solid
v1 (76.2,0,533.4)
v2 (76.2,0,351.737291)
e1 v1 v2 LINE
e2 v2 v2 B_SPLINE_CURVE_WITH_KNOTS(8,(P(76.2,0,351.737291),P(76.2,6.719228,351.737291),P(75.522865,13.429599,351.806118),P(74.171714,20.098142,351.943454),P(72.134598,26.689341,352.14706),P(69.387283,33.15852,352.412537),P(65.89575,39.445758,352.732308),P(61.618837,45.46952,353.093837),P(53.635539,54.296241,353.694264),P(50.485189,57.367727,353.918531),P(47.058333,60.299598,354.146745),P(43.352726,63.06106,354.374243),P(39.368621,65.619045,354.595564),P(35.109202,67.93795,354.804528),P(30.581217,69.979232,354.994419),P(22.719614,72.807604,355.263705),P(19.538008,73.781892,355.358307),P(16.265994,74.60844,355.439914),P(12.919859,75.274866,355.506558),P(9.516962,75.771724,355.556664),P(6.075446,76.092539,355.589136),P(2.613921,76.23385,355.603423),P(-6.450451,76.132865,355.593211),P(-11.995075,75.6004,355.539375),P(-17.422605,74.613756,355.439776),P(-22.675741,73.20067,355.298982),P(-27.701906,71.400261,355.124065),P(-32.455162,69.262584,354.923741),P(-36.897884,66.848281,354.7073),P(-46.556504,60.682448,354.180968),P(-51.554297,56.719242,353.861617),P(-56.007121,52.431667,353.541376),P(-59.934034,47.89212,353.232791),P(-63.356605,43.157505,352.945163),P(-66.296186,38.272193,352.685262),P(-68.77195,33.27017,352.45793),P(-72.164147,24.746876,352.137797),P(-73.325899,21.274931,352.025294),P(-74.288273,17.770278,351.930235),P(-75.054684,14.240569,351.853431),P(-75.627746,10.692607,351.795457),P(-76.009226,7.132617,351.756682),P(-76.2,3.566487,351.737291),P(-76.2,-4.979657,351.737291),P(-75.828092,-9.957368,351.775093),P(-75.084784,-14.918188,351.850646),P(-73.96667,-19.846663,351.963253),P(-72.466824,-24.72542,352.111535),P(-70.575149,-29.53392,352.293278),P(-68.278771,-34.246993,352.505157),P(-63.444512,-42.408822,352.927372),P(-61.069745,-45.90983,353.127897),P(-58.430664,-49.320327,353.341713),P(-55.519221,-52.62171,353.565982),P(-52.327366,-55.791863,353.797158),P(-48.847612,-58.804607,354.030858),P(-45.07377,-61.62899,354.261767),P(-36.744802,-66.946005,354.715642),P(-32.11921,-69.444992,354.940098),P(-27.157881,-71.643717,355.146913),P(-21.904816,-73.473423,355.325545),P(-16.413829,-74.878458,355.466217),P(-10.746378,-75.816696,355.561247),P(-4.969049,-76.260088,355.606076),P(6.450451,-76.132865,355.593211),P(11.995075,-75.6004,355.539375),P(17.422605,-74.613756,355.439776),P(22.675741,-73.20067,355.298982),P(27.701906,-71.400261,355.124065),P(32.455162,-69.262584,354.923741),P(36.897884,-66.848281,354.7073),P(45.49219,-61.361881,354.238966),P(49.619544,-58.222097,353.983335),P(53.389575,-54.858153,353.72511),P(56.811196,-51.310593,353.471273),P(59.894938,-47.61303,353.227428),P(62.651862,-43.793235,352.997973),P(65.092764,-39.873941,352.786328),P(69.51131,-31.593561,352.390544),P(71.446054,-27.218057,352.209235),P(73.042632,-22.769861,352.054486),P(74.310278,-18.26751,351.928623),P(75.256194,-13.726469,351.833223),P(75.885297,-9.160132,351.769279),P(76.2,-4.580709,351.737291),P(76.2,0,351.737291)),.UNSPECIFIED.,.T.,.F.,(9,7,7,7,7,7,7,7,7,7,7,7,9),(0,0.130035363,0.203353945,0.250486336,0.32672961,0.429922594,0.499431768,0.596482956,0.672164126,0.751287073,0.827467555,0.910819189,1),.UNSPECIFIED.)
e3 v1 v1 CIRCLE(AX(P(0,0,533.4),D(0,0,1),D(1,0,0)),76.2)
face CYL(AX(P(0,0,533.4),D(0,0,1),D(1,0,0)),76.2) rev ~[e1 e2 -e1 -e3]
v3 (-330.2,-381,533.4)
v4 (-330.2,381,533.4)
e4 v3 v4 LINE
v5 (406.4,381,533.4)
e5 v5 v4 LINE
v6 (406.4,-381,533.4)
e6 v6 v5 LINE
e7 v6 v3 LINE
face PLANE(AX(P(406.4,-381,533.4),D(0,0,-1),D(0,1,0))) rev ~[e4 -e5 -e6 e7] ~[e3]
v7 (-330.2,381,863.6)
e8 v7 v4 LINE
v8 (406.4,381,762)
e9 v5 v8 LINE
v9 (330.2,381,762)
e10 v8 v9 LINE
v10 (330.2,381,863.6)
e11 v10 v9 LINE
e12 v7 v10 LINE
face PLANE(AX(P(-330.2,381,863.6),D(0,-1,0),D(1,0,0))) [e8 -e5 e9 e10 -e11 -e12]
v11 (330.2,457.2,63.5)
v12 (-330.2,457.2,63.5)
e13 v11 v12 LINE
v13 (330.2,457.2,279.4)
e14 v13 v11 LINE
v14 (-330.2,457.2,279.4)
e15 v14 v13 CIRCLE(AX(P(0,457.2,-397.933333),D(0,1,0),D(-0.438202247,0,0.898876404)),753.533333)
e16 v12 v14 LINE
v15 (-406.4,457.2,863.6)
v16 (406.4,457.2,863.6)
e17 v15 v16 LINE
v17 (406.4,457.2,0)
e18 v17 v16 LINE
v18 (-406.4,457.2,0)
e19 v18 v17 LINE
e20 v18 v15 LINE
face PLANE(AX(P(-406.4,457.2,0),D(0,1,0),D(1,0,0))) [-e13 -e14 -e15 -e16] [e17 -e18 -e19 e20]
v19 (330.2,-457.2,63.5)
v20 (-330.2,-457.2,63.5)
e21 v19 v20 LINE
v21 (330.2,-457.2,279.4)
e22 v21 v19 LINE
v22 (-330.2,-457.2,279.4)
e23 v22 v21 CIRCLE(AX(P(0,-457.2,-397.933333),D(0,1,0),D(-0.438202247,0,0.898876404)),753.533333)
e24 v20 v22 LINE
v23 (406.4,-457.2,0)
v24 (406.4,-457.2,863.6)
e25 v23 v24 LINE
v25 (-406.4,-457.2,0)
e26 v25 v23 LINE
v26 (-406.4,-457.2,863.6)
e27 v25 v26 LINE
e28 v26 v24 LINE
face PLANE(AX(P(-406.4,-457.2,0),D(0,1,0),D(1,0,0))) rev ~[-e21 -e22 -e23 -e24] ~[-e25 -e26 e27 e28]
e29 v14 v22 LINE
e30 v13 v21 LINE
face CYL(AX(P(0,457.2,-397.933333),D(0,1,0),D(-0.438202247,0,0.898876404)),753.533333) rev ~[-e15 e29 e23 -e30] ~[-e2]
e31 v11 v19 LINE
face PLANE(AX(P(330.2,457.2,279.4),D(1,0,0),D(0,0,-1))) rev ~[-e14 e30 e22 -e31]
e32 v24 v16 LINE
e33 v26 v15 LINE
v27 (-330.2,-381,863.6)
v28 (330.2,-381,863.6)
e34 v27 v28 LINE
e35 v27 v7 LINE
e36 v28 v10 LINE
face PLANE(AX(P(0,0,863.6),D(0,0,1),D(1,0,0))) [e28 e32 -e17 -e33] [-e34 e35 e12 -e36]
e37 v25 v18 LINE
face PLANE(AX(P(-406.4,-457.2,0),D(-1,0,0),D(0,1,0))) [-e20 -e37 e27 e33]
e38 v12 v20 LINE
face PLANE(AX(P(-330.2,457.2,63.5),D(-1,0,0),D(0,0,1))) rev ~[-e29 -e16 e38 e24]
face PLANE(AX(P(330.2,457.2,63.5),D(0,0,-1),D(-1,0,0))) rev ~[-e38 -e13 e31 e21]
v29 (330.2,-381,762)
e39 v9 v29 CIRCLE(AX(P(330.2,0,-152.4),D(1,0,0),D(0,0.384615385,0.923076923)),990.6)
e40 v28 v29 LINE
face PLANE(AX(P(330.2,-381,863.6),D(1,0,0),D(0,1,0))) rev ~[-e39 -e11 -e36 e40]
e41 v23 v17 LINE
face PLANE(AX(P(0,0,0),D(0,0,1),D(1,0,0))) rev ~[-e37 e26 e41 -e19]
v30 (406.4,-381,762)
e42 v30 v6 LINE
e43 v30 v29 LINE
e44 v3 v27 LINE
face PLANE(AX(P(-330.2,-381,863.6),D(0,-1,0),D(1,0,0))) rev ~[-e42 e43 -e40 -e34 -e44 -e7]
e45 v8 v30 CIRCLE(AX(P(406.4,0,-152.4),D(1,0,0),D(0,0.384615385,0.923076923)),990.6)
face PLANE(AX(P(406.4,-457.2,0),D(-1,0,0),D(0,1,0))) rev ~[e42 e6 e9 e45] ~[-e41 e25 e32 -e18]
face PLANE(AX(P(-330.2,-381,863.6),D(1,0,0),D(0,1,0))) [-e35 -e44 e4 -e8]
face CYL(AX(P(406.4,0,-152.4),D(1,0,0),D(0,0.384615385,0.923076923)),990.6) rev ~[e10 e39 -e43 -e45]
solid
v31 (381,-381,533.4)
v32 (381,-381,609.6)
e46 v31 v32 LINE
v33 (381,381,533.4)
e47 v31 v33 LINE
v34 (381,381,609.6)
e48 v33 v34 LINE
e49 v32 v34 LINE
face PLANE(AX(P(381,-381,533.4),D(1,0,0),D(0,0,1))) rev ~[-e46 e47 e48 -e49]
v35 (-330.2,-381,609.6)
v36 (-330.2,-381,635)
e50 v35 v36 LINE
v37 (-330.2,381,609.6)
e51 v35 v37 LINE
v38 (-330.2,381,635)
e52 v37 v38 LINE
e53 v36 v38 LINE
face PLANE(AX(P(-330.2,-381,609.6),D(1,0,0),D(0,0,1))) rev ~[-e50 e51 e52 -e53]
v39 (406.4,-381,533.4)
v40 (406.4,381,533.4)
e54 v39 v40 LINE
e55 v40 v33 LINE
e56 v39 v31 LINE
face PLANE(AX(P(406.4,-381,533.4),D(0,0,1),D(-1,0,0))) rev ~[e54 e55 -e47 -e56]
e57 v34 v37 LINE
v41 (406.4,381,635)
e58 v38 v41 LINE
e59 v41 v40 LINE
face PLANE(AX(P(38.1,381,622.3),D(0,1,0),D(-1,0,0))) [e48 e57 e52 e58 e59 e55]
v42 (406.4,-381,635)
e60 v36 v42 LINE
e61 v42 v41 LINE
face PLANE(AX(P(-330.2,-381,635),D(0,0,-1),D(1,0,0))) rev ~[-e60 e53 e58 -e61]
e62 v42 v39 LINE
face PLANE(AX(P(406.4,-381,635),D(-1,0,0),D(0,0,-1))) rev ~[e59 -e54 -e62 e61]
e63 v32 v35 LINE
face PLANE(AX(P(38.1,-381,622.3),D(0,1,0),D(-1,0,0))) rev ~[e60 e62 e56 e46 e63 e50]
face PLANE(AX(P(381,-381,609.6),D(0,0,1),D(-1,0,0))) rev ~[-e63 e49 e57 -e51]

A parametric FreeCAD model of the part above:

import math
import FreeCAD as App
import Part
import Sketcher

V = App.Vector
Q = App.Units.Quantity

doc = App.newDocument("Part")
body = doc.addObject("PartDesign::Body", "Body")

# Sketch on XY plane
sketch1 = body.newObject("Sketcher::SketchObject", "Sketch")
sketch1.AttachmentSupport = (doc.getObject("XY_Plane"), [""])
sketch1.MapMode = "FlatFace"
sketch1.addGeometry([
    Part.LineSegment(V(-406.4, 457.2, 0), V(-406.4, -457.2, 0)),
    Part.LineSegment(V(-406.4, -457.2, 0), V(406.4, -457.2, 0)),
    Part.LineSegment(V(406.4, -457.2, 0), V(406.4, 457.2, 0)),
    Part.LineSegment(V(406.4, 457.2, 0), V(-406.4, 457.2, 0)),
], False)
sketch1.addConstraint([
    Sketcher.Constraint("Coincident", 0, 2, 1, 1),
    Sketcher.Constraint("Coincident", 1, 2, 2, 1),
    Sketcher.Constraint("Coincident", 2, 2, 3, 1),
    Sketcher.Constraint("Coincident", 3, 2, 0, 1),
    Sketcher.Constraint("Vertical", 0),
    Sketcher.Constraint("Horizontal", 1),
    Sketcher.Constraint("Vertical", 2),
    Sketcher.Constraint("Horizontal", 3),
    Sketcher.Constraint("Symmetric", 0, 2, 2, 2, -1, 1),
    Sketcher.Constraint("DistanceX", 1, 1, 1, 2, Q("32 in")),
    Sketcher.Constraint("DistanceY", 0, 2, 0, 1, Q("36 in")),
])
pad1 = body.newObject("PartDesign::Pad", "Pad")
pad1.Profile = sketch1
pad1.Length = Q("34 in")

# Sketch on YZ plane
sketch2 = body.newObject("Sketcher::SketchObject", "Sketch001")
sketch2.AttachmentSupport = (doc.getObject("YZ_Plane"), [""])
sketch2.MapMode = "FlatFace"
sketch2.AttachmentOffset = App.Placement(V(0, 0, 16 * 25.4), App.Rotation())
sketch2.addGeometry([
    Part.LineSegment(V(-381, 762, 0), V(-381, 533.4, 0)),
    Part.LineSegment(V(-381, 533.4, 0), V(381, 533.4, 0)),
    Part.LineSegment(V(381, 533.4, 0), V(381, 762, 0)),
    Part.ArcOfCircle(Part.Circle(V(0, -152.4, 0), V(0, 0, 1), 990.6), math.radians(67.380135), math.radians(112.619865)),
], False)
sketch2.addConstraint([
    Sketcher.Constraint("Coincident", 0, 2, 1, 1),
    Sketcher.Constraint("Coincident", 1, 2, 2, 1),
    Sketcher.Constraint("Coincident", 2, 2, 3, 1),
    Sketcher.Constraint("Coincident", 3, 2, 0, 1),
    Sketcher.Constraint("Vertical", 0),
    Sketcher.Constraint("Horizontal", 1),
    Sketcher.Constraint("Vertical", 2),
    Sketcher.Constraint("PointOnObject", 3, 3, -2),
    Sketcher.Constraint("Equal", 0, 2),
    Sketcher.Constraint("Radius", 3, Q("39 in")),
    Sketcher.Constraint("DistanceX", 1, 1, 1, 2, Q("30 in")),
    Sketcher.Constraint("DistanceY", 0, 2, 0, 1, Q("9 in")),
    Sketcher.Constraint("DistanceY", 3, 3, -1, 1, Q("6 in")),
])
pocket1 = body.newObject("PartDesign::Pocket", "Pocket")
pocket1.Profile = sketch2
pocket1.Length = Q("29 in")

# Sketch on XY plane
sketch3 = body.newObject("Sketcher::SketchObject", "Sketch002")
sketch3.AttachmentSupport = (doc.getObject("XY_Plane"), [""])
sketch3.MapMode = "FlatFace"
sketch3.AttachmentOffset = App.Placement(V(0, 0, 34 * 25.4), App.Rotation())
sketch3.addGeometry([
    Part.LineSegment(V(-330.2, 381, 0), V(-330.2, -381, 0)),
    Part.LineSegment(V(-330.2, -381, 0), V(330.2, -381, 0)),
    Part.LineSegment(V(330.2, -381, 0), V(330.2, 381, 0)),
    Part.LineSegment(V(330.2, 381, 0), V(-330.2, 381, 0)),
], False)
sketch3.addConstraint([
    Sketcher.Constraint("Coincident", 0, 2, 1, 1),
    Sketcher.Constraint("Coincident", 1, 2, 2, 1),
    Sketcher.Constraint("Coincident", 2, 2, 3, 1),
    Sketcher.Constraint("Coincident", 3, 2, 0, 1),
    Sketcher.Constraint("Vertical", 0),
    Sketcher.Constraint("Horizontal", 1),
    Sketcher.Constraint("Vertical", 2),
    Sketcher.Constraint("Horizontal", 3),
    Sketcher.Constraint("Symmetric", 0, 2, 2, 2, -1, 1),
    Sketcher.Constraint("DistanceX", 1, 1, 1, 2, Q("26 in")),
    Sketcher.Constraint("DistanceY", 0, 2, 0, 1, Q("30 in")),
])
pocket2 = body.newObject("PartDesign::Pocket", "Pocket001")
pocket2.Profile = sketch3
pocket2.Length = 101.601

# Sketch on XZ plane
sketch4 = body.newObject("Sketcher::SketchObject", "Sketch003")
sketch4.AttachmentSupport = (doc.getObject("XZ_Plane"), [""])
sketch4.MapMode = "FlatFace"
sketch4.AttachmentOffset = App.Placement(V(0, 0, -18 * 25.4), App.Rotation())
sketch4.addGeometry([
    Part.LineSegment(V(330.2, 279.4, 0), V(330.2, 63.5, 0)),
    Part.LineSegment(V(330.2, 63.5, 0), V(-330.2, 63.5, 0)),
    Part.LineSegment(V(-330.2, 63.5, 0), V(-330.2, 279.4, 0)),
    Part.ArcOfCircle(Part.Circle(V(0, -397.933333, 0), V(0, 0, 1), 753.533333), math.radians(64.010766), math.radians(115.989234)),
], False)
sketch4.addConstraint([
    Sketcher.Constraint("Coincident", 0, 2, 1, 1),
    Sketcher.Constraint("Coincident", 1, 2, 2, 1),
    Sketcher.Constraint("Coincident", 2, 2, 3, 2),
    Sketcher.Constraint("Coincident", 3, 1, 0, 1),
    Sketcher.Constraint("Vertical", 0),
    Sketcher.Constraint("Horizontal", 1),
    Sketcher.Constraint("Vertical", 2),
    Sketcher.Constraint("PointOnObject", 3, 3, -2),
    Sketcher.Constraint("Equal", 0, 2),
    Sketcher.Constraint("DistanceX", 1, 2, 1, 1, Q("26 in")),
    Sketcher.Constraint("DistanceY", 0, 2, 0, 1, Q("8.5 in")),
    Sketcher.Constraint("DistanceY", -1, 1, 2, 2, Q("11 in")),
    Sketcher.Constraint("Radius", 3, 753.533333),
])
pocket3 = body.newObject("PartDesign::Pocket", "Pocket002")
pocket3.Profile = sketch4
pocket3.Type = "ThroughAll"
pocket3.Reversed = True

# Sketch on XY plane
sketch5 = body.newObject("Sketcher::SketchObject", "Sketch004")
sketch5.AttachmentSupport = (doc.getObject("XY_Plane"), [""])
sketch5.MapMode = "FlatFace"
sketch5.AttachmentOffset = App.Placement(V(0, 0, 21 * 25.4), App.Rotation())
sketch5.addGeometry(Part.Circle(V(0, 0, 0), V(0, 0, 1), 76.2), False)
sketch5.addConstraint([
    Sketcher.Constraint("Coincident", 0, 3, -1, 1),
    Sketcher.Constraint("Diameter", 0, Q("6 in")),
])
pocket4 = body.newObject("PartDesign::Pocket", "Pocket003")
pocket4.Profile = sketch5
pocket4.Length = 181.663709
body2 = doc.addObject("PartDesign::Body", "Body001")

# Sketch on XZ plane
sketch6 = body2.newObject("Sketcher::SketchObject", "Sketch005")
sketch6.AttachmentSupport = (doc.getObject("XZ_Plane001"), [""])
sketch6.MapMode = "FlatFace"
sketch6.AttachmentOffset = App.Placement(V(0, 0, 15 * 25.4), App.Rotation())
sketch6.addGeometry([
    Part.LineSegment(V(406.4, 635, 0), V(406.4, 533.4, 0)),  # 0
    Part.LineSegment(V(406.4, 533.4, 0), V(381, 533.4, 0)),  # 1
    Part.LineSegment(V(381, 533.4, 0), V(381, 609.6, 0)),  # 2
    Part.LineSegment(V(381, 609.6, 0), V(-330.2, 609.6, 0)),  # 3
    Part.LineSegment(V(-330.2, 609.6, 0), V(-330.2, 635, 0)),  # 4
    Part.LineSegment(V(-330.2, 635, 0), V(406.4, 635, 0)),  # 5
], False)
sketch6.addConstraint([
    Sketcher.Constraint("Coincident", 0, 2, 1, 1),
    Sketcher.Constraint("Coincident", 1, 2, 2, 1),
    Sketcher.Constraint("Coincident", 2, 2, 3, 1),
    Sketcher.Constraint("Coincident", 3, 2, 4, 1),
    Sketcher.Constraint("Coincident", 4, 2, 5, 1),
    Sketcher.Constraint("Coincident", 5, 2, 0, 1),
    Sketcher.Constraint("Vertical", 0),
    Sketcher.Constraint("Horizontal", 1),
    Sketcher.Constraint("Vertical", 2),
    Sketcher.Constraint("Horizontal", 3),
    Sketcher.Constraint("Vertical", 4),
    Sketcher.Constraint("Horizontal", 5),
    Sketcher.Constraint("Equal", 1, 4),
    Sketcher.Constraint("DistanceX", 1, 2, 1, 1, Q("1 in")),
    Sketcher.Constraint("DistanceX", 3, 2, 3, 1, Q("28 in")),
    Sketcher.Constraint("DistanceY", 0, 2, 0, 1, Q("4 in")),
    Sketcher.Constraint("DistanceX", -1, 1, 0, 2, Q("16 in")),
    Sketcher.Constraint("DistanceY", -1, 1, 0, 2, Q("21 in")),
])
pad2 = body2.newObject("PartDesign::Pad", "Pad001")
pad2.Profile = sketch6
pad2.Length = Q("30 in")
pad2.Reversed = True

doc.recompute()
